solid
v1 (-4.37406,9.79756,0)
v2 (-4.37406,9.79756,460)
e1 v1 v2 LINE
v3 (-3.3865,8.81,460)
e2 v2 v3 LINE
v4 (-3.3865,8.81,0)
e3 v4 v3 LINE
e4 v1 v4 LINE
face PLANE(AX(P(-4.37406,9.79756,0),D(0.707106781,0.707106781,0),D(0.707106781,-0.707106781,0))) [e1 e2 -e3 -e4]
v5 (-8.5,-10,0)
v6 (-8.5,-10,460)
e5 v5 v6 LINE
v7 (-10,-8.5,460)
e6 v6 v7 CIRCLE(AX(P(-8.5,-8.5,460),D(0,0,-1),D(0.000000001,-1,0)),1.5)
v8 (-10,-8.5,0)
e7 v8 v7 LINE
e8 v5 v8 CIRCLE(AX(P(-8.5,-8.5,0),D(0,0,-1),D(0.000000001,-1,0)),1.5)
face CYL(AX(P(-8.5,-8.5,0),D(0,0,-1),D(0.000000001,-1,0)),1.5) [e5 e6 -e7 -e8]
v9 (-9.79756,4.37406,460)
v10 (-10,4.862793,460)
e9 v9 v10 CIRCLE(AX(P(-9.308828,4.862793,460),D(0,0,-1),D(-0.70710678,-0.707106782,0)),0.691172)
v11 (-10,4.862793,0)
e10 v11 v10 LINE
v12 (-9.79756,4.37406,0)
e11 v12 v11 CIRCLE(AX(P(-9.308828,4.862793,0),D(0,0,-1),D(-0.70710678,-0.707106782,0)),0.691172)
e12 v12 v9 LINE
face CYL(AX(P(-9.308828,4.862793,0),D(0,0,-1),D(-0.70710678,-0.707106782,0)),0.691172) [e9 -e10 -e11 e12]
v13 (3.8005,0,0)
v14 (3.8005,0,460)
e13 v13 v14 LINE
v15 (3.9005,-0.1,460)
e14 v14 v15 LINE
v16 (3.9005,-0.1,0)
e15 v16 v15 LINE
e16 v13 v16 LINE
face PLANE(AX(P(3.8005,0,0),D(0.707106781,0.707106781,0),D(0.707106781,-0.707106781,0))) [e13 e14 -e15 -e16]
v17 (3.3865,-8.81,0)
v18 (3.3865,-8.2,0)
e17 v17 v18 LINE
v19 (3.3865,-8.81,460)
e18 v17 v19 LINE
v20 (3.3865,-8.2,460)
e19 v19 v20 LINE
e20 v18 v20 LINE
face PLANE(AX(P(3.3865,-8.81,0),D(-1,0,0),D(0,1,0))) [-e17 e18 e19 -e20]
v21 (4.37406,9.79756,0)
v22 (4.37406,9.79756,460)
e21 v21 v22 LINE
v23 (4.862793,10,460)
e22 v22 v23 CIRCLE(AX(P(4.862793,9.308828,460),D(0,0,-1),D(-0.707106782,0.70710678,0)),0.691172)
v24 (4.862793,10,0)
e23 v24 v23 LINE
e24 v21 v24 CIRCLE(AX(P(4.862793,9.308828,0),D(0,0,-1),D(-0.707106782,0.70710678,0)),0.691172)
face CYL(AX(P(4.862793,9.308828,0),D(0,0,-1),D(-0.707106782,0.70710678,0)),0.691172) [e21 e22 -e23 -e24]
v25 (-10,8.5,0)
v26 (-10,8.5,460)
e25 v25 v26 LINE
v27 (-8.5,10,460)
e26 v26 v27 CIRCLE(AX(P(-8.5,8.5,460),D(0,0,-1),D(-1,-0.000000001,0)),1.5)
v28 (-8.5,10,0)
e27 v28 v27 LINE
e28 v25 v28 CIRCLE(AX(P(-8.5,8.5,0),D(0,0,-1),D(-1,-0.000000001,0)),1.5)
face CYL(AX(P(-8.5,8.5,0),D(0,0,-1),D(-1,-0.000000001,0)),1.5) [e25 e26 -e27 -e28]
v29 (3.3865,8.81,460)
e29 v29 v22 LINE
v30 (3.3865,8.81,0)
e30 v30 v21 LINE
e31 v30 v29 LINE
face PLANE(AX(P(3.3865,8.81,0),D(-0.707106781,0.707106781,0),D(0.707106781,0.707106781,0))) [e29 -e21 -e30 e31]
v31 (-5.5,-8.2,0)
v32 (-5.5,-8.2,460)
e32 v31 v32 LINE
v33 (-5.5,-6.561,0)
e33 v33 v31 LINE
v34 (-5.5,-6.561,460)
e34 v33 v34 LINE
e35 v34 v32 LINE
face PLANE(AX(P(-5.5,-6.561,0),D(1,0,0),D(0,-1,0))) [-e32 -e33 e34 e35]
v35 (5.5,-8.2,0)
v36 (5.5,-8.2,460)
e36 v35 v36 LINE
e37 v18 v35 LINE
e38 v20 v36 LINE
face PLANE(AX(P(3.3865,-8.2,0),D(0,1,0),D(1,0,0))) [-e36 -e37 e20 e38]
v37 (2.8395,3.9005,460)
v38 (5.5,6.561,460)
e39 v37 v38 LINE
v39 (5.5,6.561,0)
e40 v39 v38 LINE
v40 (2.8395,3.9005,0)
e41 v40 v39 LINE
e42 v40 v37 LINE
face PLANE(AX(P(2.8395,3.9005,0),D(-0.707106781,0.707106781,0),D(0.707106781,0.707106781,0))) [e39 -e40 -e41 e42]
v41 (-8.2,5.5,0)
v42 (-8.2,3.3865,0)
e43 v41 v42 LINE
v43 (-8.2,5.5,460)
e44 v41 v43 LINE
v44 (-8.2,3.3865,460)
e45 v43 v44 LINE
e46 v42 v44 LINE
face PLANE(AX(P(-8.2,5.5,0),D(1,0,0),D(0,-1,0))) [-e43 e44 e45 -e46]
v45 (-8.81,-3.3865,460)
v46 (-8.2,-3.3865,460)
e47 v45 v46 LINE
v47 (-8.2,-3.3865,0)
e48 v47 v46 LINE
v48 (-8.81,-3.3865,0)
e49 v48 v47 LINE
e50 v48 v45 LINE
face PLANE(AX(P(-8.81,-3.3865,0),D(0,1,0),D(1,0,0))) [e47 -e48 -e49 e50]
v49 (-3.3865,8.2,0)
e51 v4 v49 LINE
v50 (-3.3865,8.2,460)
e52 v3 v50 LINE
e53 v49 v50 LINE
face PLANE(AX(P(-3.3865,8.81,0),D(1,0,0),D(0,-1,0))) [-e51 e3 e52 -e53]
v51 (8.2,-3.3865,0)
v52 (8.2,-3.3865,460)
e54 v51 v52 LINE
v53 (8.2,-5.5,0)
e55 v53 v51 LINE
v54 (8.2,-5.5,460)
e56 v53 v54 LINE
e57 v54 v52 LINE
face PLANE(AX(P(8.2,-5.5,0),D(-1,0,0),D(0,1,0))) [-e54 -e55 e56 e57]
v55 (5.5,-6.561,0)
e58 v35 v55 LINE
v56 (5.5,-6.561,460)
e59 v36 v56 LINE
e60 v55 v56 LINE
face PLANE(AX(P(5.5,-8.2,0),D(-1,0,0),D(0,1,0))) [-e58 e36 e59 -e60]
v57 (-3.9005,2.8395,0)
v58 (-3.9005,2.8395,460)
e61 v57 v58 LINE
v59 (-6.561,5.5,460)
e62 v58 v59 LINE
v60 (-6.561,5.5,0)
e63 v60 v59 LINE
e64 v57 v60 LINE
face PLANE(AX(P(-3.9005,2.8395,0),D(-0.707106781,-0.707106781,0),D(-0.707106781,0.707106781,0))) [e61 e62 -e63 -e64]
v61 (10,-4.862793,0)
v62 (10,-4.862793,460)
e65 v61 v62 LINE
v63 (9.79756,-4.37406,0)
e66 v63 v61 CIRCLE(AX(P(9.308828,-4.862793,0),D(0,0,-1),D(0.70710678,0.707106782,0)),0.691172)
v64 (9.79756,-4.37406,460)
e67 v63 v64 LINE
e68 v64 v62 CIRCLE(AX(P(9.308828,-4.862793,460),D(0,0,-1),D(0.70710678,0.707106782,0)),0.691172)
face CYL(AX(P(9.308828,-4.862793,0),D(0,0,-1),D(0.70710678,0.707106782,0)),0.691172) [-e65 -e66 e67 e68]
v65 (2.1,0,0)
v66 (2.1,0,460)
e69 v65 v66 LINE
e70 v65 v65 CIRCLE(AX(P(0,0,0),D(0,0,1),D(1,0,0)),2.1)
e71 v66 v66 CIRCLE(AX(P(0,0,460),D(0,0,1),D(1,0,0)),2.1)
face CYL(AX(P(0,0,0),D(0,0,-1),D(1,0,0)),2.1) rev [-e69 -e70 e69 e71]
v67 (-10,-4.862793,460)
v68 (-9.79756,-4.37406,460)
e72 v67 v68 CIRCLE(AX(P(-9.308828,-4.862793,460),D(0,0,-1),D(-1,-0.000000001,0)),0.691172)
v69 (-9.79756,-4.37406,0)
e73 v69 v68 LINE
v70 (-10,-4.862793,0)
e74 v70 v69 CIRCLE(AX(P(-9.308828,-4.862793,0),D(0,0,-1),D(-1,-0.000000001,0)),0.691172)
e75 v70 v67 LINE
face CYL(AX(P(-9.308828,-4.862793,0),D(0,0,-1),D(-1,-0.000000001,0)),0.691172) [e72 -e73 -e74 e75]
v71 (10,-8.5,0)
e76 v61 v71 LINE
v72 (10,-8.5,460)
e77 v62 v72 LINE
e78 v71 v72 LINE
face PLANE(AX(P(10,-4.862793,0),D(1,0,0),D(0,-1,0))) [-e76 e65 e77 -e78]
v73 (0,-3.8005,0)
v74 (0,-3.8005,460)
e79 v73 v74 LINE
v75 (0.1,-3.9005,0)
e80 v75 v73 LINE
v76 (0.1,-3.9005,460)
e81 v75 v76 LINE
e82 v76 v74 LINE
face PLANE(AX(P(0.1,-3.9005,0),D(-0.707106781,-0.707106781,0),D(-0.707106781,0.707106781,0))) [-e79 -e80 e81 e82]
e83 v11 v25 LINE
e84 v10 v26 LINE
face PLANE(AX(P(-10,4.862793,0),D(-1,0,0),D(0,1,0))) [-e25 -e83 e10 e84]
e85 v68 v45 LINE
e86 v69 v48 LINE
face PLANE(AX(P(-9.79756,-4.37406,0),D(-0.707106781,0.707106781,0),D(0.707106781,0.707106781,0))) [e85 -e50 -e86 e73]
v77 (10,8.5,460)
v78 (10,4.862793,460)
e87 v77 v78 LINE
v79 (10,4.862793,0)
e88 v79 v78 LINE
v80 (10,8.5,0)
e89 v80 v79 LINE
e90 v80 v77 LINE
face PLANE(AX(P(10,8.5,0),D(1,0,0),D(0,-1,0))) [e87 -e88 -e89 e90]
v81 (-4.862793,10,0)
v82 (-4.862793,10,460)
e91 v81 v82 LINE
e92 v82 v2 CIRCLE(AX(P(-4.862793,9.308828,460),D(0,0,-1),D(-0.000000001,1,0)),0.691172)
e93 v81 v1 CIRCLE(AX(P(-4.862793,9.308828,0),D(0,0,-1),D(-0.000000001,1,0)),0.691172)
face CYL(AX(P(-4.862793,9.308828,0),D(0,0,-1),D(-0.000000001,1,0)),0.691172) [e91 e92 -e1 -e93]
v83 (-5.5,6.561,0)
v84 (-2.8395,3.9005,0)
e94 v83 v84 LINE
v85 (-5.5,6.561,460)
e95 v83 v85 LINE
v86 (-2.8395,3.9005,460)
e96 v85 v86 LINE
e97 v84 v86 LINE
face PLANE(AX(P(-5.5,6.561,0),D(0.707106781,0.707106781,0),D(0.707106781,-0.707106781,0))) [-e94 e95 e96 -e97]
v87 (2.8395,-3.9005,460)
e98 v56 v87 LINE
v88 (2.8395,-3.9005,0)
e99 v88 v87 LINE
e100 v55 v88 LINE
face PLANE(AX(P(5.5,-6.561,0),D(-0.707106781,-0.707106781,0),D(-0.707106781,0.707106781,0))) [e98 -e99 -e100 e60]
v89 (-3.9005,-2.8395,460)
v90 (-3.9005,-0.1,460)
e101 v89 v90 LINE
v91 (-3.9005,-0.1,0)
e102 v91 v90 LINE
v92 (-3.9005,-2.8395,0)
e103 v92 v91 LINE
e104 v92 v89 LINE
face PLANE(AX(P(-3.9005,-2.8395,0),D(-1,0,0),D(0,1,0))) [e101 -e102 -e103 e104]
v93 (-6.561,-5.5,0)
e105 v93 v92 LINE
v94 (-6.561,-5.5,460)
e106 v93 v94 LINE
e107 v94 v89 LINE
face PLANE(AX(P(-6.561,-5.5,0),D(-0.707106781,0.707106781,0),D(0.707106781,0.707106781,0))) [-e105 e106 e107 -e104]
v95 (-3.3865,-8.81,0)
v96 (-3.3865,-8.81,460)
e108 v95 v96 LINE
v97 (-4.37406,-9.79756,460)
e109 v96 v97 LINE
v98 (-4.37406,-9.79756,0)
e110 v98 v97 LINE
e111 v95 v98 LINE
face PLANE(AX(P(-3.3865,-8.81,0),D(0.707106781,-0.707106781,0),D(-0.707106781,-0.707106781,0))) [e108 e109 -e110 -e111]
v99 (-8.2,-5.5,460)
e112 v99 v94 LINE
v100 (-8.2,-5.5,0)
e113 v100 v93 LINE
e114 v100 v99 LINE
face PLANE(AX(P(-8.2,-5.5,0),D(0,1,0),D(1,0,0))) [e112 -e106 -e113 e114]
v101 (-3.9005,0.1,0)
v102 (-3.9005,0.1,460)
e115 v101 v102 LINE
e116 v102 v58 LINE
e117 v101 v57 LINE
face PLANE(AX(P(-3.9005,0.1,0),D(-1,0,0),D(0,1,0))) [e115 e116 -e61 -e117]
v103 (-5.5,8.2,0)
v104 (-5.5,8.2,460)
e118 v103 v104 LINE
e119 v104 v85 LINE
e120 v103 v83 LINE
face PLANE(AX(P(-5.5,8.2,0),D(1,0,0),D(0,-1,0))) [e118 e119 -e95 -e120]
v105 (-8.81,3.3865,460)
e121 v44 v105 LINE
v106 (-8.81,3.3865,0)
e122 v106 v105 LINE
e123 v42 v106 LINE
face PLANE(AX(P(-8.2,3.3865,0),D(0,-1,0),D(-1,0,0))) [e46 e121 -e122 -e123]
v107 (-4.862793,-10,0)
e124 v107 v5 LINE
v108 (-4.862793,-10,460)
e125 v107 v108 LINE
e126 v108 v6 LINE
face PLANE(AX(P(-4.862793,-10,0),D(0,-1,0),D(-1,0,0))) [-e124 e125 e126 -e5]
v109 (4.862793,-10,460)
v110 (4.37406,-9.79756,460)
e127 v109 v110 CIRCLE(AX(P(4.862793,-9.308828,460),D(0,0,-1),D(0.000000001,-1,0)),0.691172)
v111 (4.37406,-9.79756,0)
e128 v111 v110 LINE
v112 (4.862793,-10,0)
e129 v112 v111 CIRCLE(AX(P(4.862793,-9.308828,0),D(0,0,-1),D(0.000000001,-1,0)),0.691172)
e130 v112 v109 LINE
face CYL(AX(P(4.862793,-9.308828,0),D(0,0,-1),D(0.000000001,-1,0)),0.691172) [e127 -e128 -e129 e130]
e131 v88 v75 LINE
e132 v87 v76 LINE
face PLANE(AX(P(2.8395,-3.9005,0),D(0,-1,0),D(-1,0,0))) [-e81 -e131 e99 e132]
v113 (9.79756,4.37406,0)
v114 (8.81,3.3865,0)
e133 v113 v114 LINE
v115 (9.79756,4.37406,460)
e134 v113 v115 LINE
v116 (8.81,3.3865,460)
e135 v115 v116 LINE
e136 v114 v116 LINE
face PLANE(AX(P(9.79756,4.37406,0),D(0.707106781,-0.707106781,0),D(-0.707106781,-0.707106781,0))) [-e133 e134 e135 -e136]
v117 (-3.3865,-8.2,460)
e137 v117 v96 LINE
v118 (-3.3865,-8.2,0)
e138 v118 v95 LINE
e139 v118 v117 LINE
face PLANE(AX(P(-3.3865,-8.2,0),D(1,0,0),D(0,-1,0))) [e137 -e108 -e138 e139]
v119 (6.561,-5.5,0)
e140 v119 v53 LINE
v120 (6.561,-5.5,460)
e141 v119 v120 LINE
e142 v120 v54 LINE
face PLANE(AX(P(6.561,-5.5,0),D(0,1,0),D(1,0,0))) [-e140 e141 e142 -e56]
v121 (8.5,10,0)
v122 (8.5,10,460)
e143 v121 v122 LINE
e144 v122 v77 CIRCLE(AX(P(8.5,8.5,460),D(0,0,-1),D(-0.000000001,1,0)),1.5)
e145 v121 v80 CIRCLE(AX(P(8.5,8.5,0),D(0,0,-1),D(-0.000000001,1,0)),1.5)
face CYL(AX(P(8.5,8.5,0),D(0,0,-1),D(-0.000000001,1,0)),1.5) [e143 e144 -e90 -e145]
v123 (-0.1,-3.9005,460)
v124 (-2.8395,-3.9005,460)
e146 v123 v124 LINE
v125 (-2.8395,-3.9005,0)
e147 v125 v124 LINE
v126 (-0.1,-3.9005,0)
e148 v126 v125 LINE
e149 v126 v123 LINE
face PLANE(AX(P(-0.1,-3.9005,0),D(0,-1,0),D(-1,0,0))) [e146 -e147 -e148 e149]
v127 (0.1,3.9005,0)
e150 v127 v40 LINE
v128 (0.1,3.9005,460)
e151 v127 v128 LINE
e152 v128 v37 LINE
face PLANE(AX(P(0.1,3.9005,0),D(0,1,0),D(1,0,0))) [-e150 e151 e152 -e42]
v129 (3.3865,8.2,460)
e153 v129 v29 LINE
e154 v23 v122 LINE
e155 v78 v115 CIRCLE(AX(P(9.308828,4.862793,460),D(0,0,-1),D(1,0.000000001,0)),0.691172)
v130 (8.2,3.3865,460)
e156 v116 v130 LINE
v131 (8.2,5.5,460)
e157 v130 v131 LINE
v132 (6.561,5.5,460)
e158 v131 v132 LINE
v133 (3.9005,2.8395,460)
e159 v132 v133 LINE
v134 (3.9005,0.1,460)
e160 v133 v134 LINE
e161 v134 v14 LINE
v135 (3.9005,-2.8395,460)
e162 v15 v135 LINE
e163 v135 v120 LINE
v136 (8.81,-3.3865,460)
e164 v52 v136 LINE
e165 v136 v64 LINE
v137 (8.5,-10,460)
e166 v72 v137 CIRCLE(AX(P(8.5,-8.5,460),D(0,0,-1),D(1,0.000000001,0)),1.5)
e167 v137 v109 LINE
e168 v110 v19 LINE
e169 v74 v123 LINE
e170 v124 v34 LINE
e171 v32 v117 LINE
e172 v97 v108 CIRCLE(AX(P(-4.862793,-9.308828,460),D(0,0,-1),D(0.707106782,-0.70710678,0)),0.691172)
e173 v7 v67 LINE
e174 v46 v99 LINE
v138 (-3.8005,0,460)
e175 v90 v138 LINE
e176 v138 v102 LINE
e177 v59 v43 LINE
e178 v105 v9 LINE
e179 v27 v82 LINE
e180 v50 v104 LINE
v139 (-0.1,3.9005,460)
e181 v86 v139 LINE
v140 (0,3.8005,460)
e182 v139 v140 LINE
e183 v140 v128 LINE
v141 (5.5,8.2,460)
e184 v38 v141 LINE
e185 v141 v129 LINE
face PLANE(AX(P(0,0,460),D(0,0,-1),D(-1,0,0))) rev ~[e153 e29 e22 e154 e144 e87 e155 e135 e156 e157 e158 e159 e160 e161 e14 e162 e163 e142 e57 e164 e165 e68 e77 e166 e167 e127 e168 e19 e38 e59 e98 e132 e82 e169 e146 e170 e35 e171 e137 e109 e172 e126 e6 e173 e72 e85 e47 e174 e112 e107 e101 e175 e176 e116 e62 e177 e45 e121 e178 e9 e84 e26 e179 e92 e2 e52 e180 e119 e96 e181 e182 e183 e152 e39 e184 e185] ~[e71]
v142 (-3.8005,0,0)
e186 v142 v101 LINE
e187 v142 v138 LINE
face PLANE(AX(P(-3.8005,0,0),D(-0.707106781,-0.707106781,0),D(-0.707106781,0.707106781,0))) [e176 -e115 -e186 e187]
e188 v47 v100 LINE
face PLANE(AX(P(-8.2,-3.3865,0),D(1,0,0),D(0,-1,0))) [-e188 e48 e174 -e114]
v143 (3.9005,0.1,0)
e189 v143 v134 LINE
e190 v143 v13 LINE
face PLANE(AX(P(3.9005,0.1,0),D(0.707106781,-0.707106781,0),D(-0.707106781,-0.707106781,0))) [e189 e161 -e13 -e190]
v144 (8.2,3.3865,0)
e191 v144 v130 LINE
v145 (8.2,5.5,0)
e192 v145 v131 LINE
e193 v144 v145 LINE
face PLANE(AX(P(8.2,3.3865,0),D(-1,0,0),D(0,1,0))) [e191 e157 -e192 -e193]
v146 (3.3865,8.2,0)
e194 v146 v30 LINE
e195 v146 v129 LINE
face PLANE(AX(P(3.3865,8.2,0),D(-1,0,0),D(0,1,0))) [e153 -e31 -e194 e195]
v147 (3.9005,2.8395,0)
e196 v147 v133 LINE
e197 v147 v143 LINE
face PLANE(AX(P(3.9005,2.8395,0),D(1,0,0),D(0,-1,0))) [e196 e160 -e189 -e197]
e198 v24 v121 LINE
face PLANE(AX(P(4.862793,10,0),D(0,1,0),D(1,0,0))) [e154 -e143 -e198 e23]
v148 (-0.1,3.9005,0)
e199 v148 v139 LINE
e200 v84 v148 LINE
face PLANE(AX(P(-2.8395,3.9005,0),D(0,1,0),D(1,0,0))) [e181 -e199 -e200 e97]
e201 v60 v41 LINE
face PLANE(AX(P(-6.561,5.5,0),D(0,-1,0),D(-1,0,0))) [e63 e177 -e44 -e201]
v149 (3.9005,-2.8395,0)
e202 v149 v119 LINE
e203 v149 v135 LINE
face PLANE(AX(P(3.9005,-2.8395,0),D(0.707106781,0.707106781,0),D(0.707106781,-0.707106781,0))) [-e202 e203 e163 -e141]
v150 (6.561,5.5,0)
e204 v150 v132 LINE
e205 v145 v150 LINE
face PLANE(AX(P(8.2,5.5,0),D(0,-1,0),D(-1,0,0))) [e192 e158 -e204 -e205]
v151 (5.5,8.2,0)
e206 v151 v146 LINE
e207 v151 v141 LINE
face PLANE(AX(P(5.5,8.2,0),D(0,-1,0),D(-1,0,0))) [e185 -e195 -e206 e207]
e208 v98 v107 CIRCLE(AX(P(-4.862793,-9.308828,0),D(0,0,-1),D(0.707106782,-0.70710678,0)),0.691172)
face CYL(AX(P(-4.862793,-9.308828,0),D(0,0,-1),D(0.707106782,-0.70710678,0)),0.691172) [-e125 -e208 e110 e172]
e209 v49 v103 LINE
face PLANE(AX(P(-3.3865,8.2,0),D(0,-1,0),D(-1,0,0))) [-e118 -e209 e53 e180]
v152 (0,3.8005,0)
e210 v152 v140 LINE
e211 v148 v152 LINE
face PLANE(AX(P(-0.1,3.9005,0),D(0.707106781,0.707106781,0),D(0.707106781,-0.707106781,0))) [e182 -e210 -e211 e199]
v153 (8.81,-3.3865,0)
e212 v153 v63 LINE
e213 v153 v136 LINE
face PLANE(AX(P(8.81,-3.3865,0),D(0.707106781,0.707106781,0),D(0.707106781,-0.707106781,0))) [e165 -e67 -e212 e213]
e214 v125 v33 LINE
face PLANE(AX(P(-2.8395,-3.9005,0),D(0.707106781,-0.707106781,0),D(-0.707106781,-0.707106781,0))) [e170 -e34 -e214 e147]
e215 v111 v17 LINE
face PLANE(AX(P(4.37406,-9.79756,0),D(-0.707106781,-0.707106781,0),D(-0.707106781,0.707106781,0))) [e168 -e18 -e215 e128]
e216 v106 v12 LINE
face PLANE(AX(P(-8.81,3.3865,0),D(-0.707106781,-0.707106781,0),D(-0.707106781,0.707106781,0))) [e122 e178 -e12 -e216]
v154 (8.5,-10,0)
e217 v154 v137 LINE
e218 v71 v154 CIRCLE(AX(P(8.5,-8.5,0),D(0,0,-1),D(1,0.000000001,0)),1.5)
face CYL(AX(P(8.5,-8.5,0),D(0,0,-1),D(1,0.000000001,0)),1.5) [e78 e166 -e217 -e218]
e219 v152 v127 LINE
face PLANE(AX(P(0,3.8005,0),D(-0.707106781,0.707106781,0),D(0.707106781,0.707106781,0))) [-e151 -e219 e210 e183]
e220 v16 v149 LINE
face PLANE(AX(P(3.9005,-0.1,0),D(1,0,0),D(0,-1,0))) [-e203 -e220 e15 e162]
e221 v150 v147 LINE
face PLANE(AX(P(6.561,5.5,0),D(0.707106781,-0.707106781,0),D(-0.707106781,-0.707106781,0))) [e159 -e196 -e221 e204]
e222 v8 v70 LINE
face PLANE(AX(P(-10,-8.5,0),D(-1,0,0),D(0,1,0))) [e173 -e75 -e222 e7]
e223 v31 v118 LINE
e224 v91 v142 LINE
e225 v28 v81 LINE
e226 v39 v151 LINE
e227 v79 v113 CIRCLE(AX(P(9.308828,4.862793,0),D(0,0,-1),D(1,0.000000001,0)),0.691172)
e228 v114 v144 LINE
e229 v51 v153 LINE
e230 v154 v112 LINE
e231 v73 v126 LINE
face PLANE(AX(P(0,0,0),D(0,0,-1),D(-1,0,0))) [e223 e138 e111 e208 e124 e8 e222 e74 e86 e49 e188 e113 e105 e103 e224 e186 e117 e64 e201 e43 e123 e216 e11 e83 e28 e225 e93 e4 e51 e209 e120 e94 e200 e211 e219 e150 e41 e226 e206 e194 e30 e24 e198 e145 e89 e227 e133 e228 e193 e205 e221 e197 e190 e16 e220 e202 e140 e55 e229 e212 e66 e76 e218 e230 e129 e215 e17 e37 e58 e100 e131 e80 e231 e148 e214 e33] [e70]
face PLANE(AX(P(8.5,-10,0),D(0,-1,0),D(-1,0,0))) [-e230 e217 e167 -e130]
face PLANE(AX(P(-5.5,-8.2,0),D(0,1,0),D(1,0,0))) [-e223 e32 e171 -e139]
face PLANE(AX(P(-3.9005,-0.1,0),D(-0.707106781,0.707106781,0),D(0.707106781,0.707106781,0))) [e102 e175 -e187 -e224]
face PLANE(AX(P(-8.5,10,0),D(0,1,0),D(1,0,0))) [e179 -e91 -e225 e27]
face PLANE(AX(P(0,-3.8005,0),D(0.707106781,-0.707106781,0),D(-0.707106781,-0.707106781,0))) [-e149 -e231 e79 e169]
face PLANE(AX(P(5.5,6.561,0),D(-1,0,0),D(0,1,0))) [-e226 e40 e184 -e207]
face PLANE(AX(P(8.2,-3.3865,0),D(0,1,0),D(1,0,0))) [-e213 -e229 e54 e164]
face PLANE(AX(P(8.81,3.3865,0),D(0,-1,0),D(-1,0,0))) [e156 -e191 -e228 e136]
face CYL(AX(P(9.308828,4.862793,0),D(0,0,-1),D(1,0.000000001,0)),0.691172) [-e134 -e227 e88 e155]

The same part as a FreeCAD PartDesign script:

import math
import FreeCAD as App
import Part
import Sketcher
Q = App.Units.Quantity

doc = App.newDocument("Part")
params = doc.addObject("Spreadsheet::Sheet", "Params")
for row, (alias, value) in enumerate([
    ("sketch1_diameter", "4.2 mm"),
    ("sketch1_radius", "1.5 mm"),
    ("sketch1_width", "0.61 mm"),
    ("pad1_length", "460 mm"),
], start=1):
    params.set(f"A{row}", alias)
    params.set(f"B{row}", "=" + value)
    params.setAlias(f"B{row}", alias)

body = doc.addObject("PartDesign::Body", "Body")

# Sketch on XY plane
sketch1 = doc.addObject("Sketcher::SketchObject", "Sketch")
body.addObject(sketch1)
sketch1.AttachmentSupport = (doc.XY_Plane, [""])
sketch1.MapMode = "FlatFace"
sketch1.addGeometry(Part.LineSegment(App.Vector(-4.86, 10, 0), App.Vector(-8.5, 10, 0)), False)
sketch1.addGeometry(Part.ArcOfCircle(Part.Circle(App.Vector(-8.5, 8.5, 0), App.Vector(0, 0, 1), 1.5), math.radians(90), math.radians(180)), False)
sketch1.addGeometry(Part.LineSegment(App.Vector(-10, 8.5, 0), App.Vector(-10, 4.86, 0)), False)
sketch1.addGeometry(Part.ArcOfCircle(Part.Circle(App.Vector(-9.31, 4.86, 0), App.Vector(0, 0, 1), 0.69), math.radians(180), math.radians(225)), False)
sketch1.addGeometry(Part.LineSegment(App.Vector(-9.8, 4.37, 0), App.Vector(-8.81, 3.39, 0)), False)
sketch1.addGeometry(Part.LineSegment(App.Vector(-8.81, 3.39, 0), App.Vector(-8.2, 3.39, 0)), False)
sketch1.addGeometry(Part.LineSegment(App.Vector(-8.2, 3.39, 0), App.Vector(-8.2, 5.5, 0)), False)
sketch1.addGeometry(Part.LineSegment(App.Vector(-8.2, 5.5, 0), App.Vector(-6.56, 5.5, 0)), False)
sketch1.addGeometry(Part.LineSegment(App.Vector(-6.56, 5.5, 0), App.Vector(-3.9, 2.84, 0)), False)
sketch1.addGeometry(Part.LineSegment(App.Vector(-3.9, 2.84, 0), App.Vector(-3.9, 0.1, 0)), False)
sketch1.addGeometry(Part.LineSegment(App.Vector(-3.9, 0.1, 0), App.Vector(-3.8, 0, 0)), False)
sketch1.addGeometry(Part.LineSegment(App.Vector(-3.8, 0, 0), App.Vector(-3.9, -0.1, 0)), False)
sketch1.addGeometry(Part.LineSegment(App.Vector(-3.9, -0.1, 0), App.Vector(-3.9, -2.84, 0)), False)
sketch1.addGeometry(Part.LineSegment(App.Vector(-3.9, -2.84, 0), App.Vector(-6.56, -5.5, 0)), False)
sketch1.addGeometry(Part.LineSegment(App.Vector(-6.56, -5.5, 0), App.Vector(-8.2, -5.5, 0)), False)
sketch1.addGeometry(Part.LineSegment(App.Vector(-8.2, -5.5, 0), App.Vector(-8.2, -3.39, 0)), False)
sketch1.addGeometry(Part.LineSegment(App.Vector(-8.2, -3.39, 0), App.Vector(-8.81, -3.39, 0)), False)
sketch1.addGeometry(Part.LineSegment(App.Vector(-8.81, -3.39, 0), App.Vector(-9.8, -4.37, 0)), False)
sketch1.addGeometry(Part.ArcOfCircle(Part.Circle(App.Vector(-9.31, -4.86, 0), App.Vector(0, 0, 1), 0.69), math.radians(135), math.radians(180)), False)
sketch1.addGeometry(Part.LineSegment(App.Vector(-10, -4.86, 0), App.Vector(-10, -8.5, 0)), False)
sketch1.addGeometry(Part.ArcOfCircle(Part.Circle(App.Vector(-8.5, -8.5, 0), App.Vector(0, 0, 1), 1.5), math.radians(180), math.radians(270)), False)
sketch1.addGeometry(Part.LineSegment(App.Vector(-8.5, -10, 0), App.Vector(-4.86, -10, 0)), False)
sketch1.addGeometry(Part.ArcOfCircle(Part.Circle(App.Vector(-4.86, -9.31, 0), App.Vector(0, 0, 1), 0.69), math.radians(-90), math.radians(-45)), False)
sketch1.addGeometry(Part.LineSegment(App.Vector(-4.37, -9.8, 0), App.Vector(-3.39, -8.81, 0)), False)
sketch1.addGeometry(Part.LineSegment(App.Vector(-3.39, -8.81, 0), App.Vector(-3.39, -8.2, 0)), False)
sketch1.addGeometry(Part.LineSegment(App.Vector(-3.39, -8.2, 0), App.Vector(-5.5, -8.2, 0)), False)
sketch1.addGeometry(Part.LineSegment(App.Vector(-5.5, -8.2, 0), App.Vector(-5.5, -6.56, 0)), False)
sketch1.addGeometry(Part.LineSegment(App.Vector(-5.5, -6.56, 0), App.Vector(-2.84, -3.9, 0)), False)
sketch1.addGeometry(Part.LineSegment(App.Vector(-2.84, -3.9, 0), App.Vector(-0.1, -3.9, 0)), False)
sketch1.addGeometry(Part.LineSegment(App.Vector(-0.1, -3.9, 0), App.Vector(0, -3.8, 0)), False)
sketch1.addGeometry(Part.LineSegment(App.Vector(0, -3.8, 0), App.Vector(0.1, -3.9, 0)), False)
sketch1.addGeometry(Part.LineSegment(App.Vector(0.1, -3.9, 0), App.Vector(2.84, -3.9, 0)), False)
sketch1.addGeometry(Part.LineSegment(App.Vector(2.84, -3.9, 0), App.Vector(5.5, -6.56, 0)), False)
sketch1.addGeometry(Part.LineSegment(App.Vector(5.5, -6.56, 0), App.Vector(5.5, -8.2, 0)), False)
sketch1.addGeometry(Part.LineSegment(App.Vector(5.5, -8.2, 0), App.Vector(3.39, -8.2, 0)), False)
sketch1.addGeometry(Part.LineSegment(App.Vector(3.39, -8.2, 0), App.Vector(3.39, -8.81, 0)), False)
sketch1.addGeometry(Part.LineSegment(App.Vector(3.39, -8.81, 0), App.Vector(4.37, -9.8, 0)), False)
sketch1.addGeometry(Part.ArcOfCircle(Part.Circle(App.Vector(4.86, -9.31, 0), App.Vector(0, 0, 1), 0.69), math.radians(-135), math.radians(-90)), False)
sketch1.addGeometry(Part.LineSegment(App.Vector(4.86, -10, 0), App.Vector(8.5, -10, 0)), False)
sketch1.addGeometry(Part.ArcOfCircle(Part.Circle(App.Vector(8.5, -8.5, 0), App.Vector(0, 0, 1), 1.5), math.radians(-90), math.radians(0)), False)
sketch1.addGeometry(Part.LineSegment(App.Vector(10, -8.5, 0), App.Vector(10, -4.86, 0)), False)
sketch1.addGeometry(Part.ArcOfCircle(Part.Circle(App.Vector(9.31, -4.86, 0), App.Vector(0, 0, 1), 0.69), math.radians(0), math.radians(45)), False)
sketch1.addGeometry(Part.LineSegment(App.Vector(9.8, -4.37, 0), App.Vector(8.81, -3.39, 0)), False)
sketch1.addGeometry(Part.LineSegment(App.Vector(8.81, -3.39, 0), App.Vector(8.2, -3.39, 0)), False)
sketch1.addGeometry(Part.LineSegment(App.Vector(8.2, -3.39, 0), App.Vector(8.2, -5.5, 0)), False)
sketch1.addGeometry(Part.LineSegment(App.Vector(8.2, -5.5, 0), App.Vector(6.56, -5.5, 0)), False)
sketch1.addGeometry(Part.LineSegment(App.Vector(6.56, -5.5, 0), App.Vector(3.9, -2.84, 0)), False)
sketch1.addGeometry(Part.LineSegment(App.Vector(3.9, -2.84, 0), App.Vector(3.9, -0.1, 0)), False)
sketch1.addGeometry(Part.LineSegment(App.Vector(3.9, -0.1, 0), App.Vector(3.8, 0, 0)), False)
sketch1.addGeometry(Part.LineSegment(App.Vector(3.8, 0, 0), App.Vector(3.9, 0.1, 0)), False)
sketch1.addGeometry(Part.LineSegment(App.Vector(3.9, 0.1, 0), App.Vector(3.9, 2.84, 0)), False)
sketch1.addGeometry(Part.LineSegment(App.Vector(3.9, 2.84, 0), App.Vector(6.56, 5.5, 0)), False)
sketch1.addGeometry(Part.LineSegment(App.Vector(6.56, 5.5, 0), App.Vector(8.2, 5.5, 0)), False)
sketch1.addGeometry(Part.LineSegment(App.Vector(8.2, 5.5, 0), App.Vector(8.2, 3.39, 0)), False)
sketch1.addGeometry(Part.LineSegment(App.Vector(8.2, 3.39, 0), App.Vector(8.81, 3.39, 0)), False)
sketch1.addGeometry(Part.LineSegment(App.Vector(8.81, 3.39, 0), App.Vector(9.8, 4.37, 0)), False)
sketch1.addGeometry(Part.ArcOfCircle(Part.Circle(App.Vector(9.31, 4.86, 0), App.Vector(0, 0, 1), 0.69), math.radians(-45), math.radians(0)), False)
sketch1.addGeometry(Part.LineSegment(App.Vector(10, 4.86, 0), App.Vector(10, 8.5, 0)), False)
sketch1.addGeometry(Part.ArcOfCircle(Part.Circle(App.Vector(8.5, 8.5, 0), App.Vector(0, 0, 1), 1.5), math.radians(0), math.radians(90)), False)
sketch1.addGeometry(Part.LineSegment(App.Vector(8.5, 10, 0), App.Vector(4.86, 10, 0)), False)
sketch1.addGeometry(Part.ArcOfCircle(Part.Circle(App.Vector(4.86, 9.31, 0), App.Vector(0, 0, 1), 0.69), math.radians(90), math.radians(135)), False)
sketch1.addGeometry(Part.LineSegment(App.Vector(4.37, 9.8, 0), App.Vector(3.39, 8.81, 0)), False)
sketch1.addGeometry(Part.LineSegment(App.Vector(3.39, 8.81, 0), App.Vector(3.39, 8.2, 0)), False)
sketch1.addGeometry(Part.LineSegment(App.Vector(3.39, 8.2, 0), App.Vector(5.5, 8.2, 0)), False)
sketch1.addGeometry(Part.LineSegment(App.Vector(5.5, 8.2, 0), App.Vector(5.5, 6.56, 0)), False)
sketch1.addGeometry(Part.LineSegment(App.Vector(5.5, 6.56, 0), App.Vector(2.84, 3.9, 0)), False)
sketch1.addGeometry(Part.LineSegment(App.Vector(2.84, 3.9, 0), App.Vector(0.1, 3.9, 0)), False)
sketch1.addGeometry(Part.LineSegment(App.Vector(0.1, 3.9, 0), App.Vector(0, 3.8, 0)), False)
sketch1.addGeometry(Part.LineSegment(App.Vector(0, 3.8, 0), App.Vector(-0.1, 3.9, 0)), False)
sketch1.addGeometry(Part.LineSegment(App.Vector(-0.1, 3.9, 0), App.Vector(-2.84, 3.9, 0)), False)
sketch1.addGeometry(Part.LineSegment(App.Vector(-2.84, 3.9, 0), App.Vector(-5.5, 6.56, 0)), False)
sketch1.addGeometry(Part.LineSegment(App.Vector(-5.5, 6.56, 0), App.Vector(-5.5, 8.2, 0)), False)
sketch1.addGeometry(Part.LineSegment(App.Vector(-5.5, 8.2, 0), App.Vector(-3.39, 8.2, 0)), False)
sketch1.addGeometry(Part.LineSegment(App.Vector(-3.39, 8.2, 0), App.Vector(-3.39, 8.81, 0)), False)
sketch1.addGeometry(Part.LineSegment(App.Vector(-3.39, 8.81, 0), App.Vector(-4.37, 9.8, 0)), False)
sketch1.addGeometry(Part.ArcOfCircle(Part.Circle(App.Vector(-4.86, 9.31, 0), App.Vector(0, 0, 1), 0.69), math.radians(45), math.radians(90)), False)
sketch1.addGeometry(Part.Circle(App.Vector(0, 0, 0), App.Vector(0, 0, 1), 2.1), False)
sketch1.addConstraint(Sketcher.Constraint("Tangent", 0, 2, 1, 1))
sketch1.addConstraint(Sketcher.Constraint("Tangent", 1, 2, 2, 1))
sketch1.addConstraint(Sketcher.Constraint("Tangent", 2, 2, 3, 1))
sketch1.addConstraint(Sketcher.Constraint("Tangent", 3, 2, 4, 1))
sketch1.addConstraint(Sketcher.Constraint("Coincident", 4, 2, 5, 1))
sketch1.addConstraint(Sketcher.Constraint("Coincident", 5, 2, 6, 1))
sketch1.addConstraint(Sketcher.Constraint("Coincident", 6, 2, 7, 1))
sketch1.addConstraint(Sketcher.Constraint("Coincident", 7, 2, 8, 1))
sketch1.addConstraint(Sketcher.Constraint("Coincident", 8, 2, 9, 1))
sketch1.addConstraint(Sketcher.Constraint("Coincident", 9, 2, 10, 1))
sketch1.addConstraint(Sketcher.Constraint("Coincident", 10, 2, 11, 1))
sketch1.addConstraint(Sketcher.Constraint("Coincident", 11, 2, 12, 1))
sketch1.addConstraint(Sketcher.Constraint("Coincident", 12, 2, 13, 1))
sketch1.addConstraint(Sketcher.Constraint("Coincident", 13, 2, 14, 1))
sketch1.addConstraint(Sketcher.Constraint("Coincident", 14, 2, 15, 1))
sketch1.addConstraint(Sketcher.Constraint("Coincident", 15, 2, 16, 1))
sketch1.addConstraint(Sketcher.Constraint("Coincident", 16, 2, 17, 1))
sketch1.addConstraint(Sketcher.Constraint("Tangent", 17, 2, 18, 1))
sketch1.addConstraint(Sketcher.Constraint("Tangent", 18, 2, 19, 1))
sketch1.addConstraint(Sketcher.Constraint("Tangent", 19, 2, 20, 1))
sketch1.addConstraint(Sketcher.Constraint("Tangent", 20, 2, 21, 1))
sketch1.addConstraint(Sketcher.Constraint("Tangent", 21, 2, 22, 1))
sketch1.addConstraint(Sketcher.Constraint("Tangent", 22, 2, 23, 1))
sketch1.addConstraint(Sketcher.Constraint("Coincident", 23, 2, 24, 1))
sketch1.addConstraint(Sketcher.Constraint("Coincident", 24, 2, 25, 1))
sketch1.addConstraint(Sketcher.Constraint("Coincident", 25, 2, 26, 1))
sketch1.addConstraint(Sketcher.Constraint("Coincident", 26, 2, 27, 1))
sketch1.addConstraint(Sketcher.Constraint("Coincident", 27, 2, 28, 1))
sketch1.addConstraint(Sketcher.Constraint("Coincident", 28, 2, 29, 1))
sketch1.addConstraint(Sketcher.Constraint("Coincident", 29, 2, 30, 1))
sketch1.addConstraint(Sketcher.Constraint("Coincident", 30, 2, 31, 1))
sketch1.addConstraint(Sketcher.Constraint("Coincident", 31, 2, 32, 1))
sketch1.addConstraint(Sketcher.Constraint("Coincident", 32, 2, 33, 1))
sketch1.addConstraint(Sketcher.Constraint("Coincident", 33, 2, 34, 1))
sketch1.addConstraint(Sketcher.Constraint("Coincident", 34, 2, 35, 1))
sketch1.addConstraint(Sketcher.Constraint("Coincident", 35, 2, 36, 1))
sketch1.addConstraint(Sketcher.Constraint("Tangent", 36, 2, 37, 1))
sketch1.addConstraint(Sketcher.Constraint("Tangent", 37, 2, 38, 1))
sketch1.addConstraint(Sketcher.Constraint("Tangent", 38, 2, 39, 1))
sketch1.addConstraint(Sketcher.Constraint("Tangent", 39, 2, 40, 1))
sketch1.addConstraint(Sketcher.Constraint("Tangent", 40, 2, 41, 1))
sketch1.addConstraint(Sketcher.Constraint("Tangent", 41, 2, 42, 1))
sketch1.addConstraint(Sketcher.Constraint("Coincident", 42, 2, 43, 1))
sketch1.addConstraint(Sketcher.Constraint("Coincident", 43, 2, 44, 1))
sketch1.addConstraint(Sketcher.Constraint("Coincident", 44, 2, 45, 1))
sketch1.addConstraint(Sketcher.Constraint("Coincident", 45, 2, 46, 1))
sketch1.addConstraint(Sketcher.Constraint("Coincident", 46, 2, 47, 1))
sketch1.addConstraint(Sketcher.Constraint("Coincident", 47, 2, 48, 1))
sketch1.addConstraint(Sketcher.Constraint("Coincident", 48, 2, 49, 1))
sketch1.addConstraint(Sketcher.Constraint("Coincident", 49, 2, 50, 1))
sketch1.addConstraint(Sketcher.Constraint("Coincident", 50, 2, 51, 1))
sketch1.addConstraint(Sketcher.Constraint("Coincident", 51, 2, 52, 1))
sketch1.addConstraint(Sketcher.Constraint("Coincident", 52, 2, 53, 1))
sketch1.addConstraint(Sketcher.Constraint("Coincident", 53, 2, 54, 1))
sketch1.addConstraint(Sketcher.Constraint("Coincident", 54, 2, 55, 1))
sketch1.addConstraint(Sketcher.Constraint("Tangent", 55, 2, 56, 1))
sketch1.addConstraint(Sketcher.Constraint("Tangent", 56, 2, 57, 1))
sketch1.addConstraint(Sketcher.Constraint("Tangent", 57, 2, 58, 1))
sketch1.addConstraint(Sketcher.Constraint("Tangent", 58, 2, 59, 1))
sketch1.addConstraint(Sketcher.Constraint("Tangent", 59, 2, 60, 1))
sketch1.addConstraint(Sketcher.Constraint("Tangent", 60, 2, 61, 1))
sketch1.addConstraint(Sketcher.Constraint("Coincident", 61, 2, 62, 1))
sketch1.addConstraint(Sketcher.Constraint("Coincident", 62, 2, 63, 1))
sketch1.addConstraint(Sketcher.Constraint("Coincident", 63, 2, 64, 1))
sketch1.addConstraint(Sketcher.Constraint("Coincident", 64, 2, 65, 1))
sketch1.addConstraint(Sketcher.Constraint("Coincident", 65, 2, 66, 1))
sketch1.addConstraint(Sketcher.Constraint("Coincident", 66, 2, 67, 1))
sketch1.addConstraint(Sketcher.Constraint("Coincident", 67, 2, 68, 1))
sketch1.addConstraint(Sketcher.Constraint("Coincident", 68, 2, 69, 1))
sketch1.addConstraint(Sketcher.Constraint("Coincident", 69, 2, 70, 1))
sketch1.addConstraint(Sketcher.Constraint("Coincident", 70, 2, 71, 1))
sketch1.addConstraint(Sketcher.Constraint("Coincident", 71, 2, 72, 1))
sketch1.addConstraint(Sketcher.Constraint("Coincident", 72, 2, 73, 1))
sketch1.addConstraint(Sketcher.Constraint("Coincident", 73, 2, 74, 1))
sketch1.addConstraint(Sketcher.Constraint("Tangent", 74, 2, 75, 1))
sketch1.addConstraint(Sketcher.Constraint("Tangent", 75, 2, 0, 1))
sketch1.addConstraint(Sketcher.Constraint("Horizontal", 0))
sketch1.addConstraint(Sketcher.Constraint("Vertical", 2))
sketch1.addConstraint(Sketcher.Constraint("Horizontal", 5))
sketch1.addConstraint(Sketcher.Constraint("Vertical", 6))
sketch1.addConstraint(Sketcher.Constraint("Horizontal", 7))
sketch1.addConstraint(Sketcher.Constraint("Vertical", 9))
sketch1.addConstraint(Sketcher.Constraint("Vertical", 12))
sketch1.addConstraint(Sketcher.Constraint("Horizontal", 14))
sketch1.addConstraint(Sketcher.Constraint("Vertical", 15))
sketch1.addConstraint(Sketcher.Constraint("Horizontal", 16))
sketch1.addConstraint(Sketcher.Constraint("Vertical", 19))
sketch1.addConstraint(Sketcher.Constraint("Horizontal", 21))
sketch1.addConstraint(Sketcher.Constraint("Vertical", 24))
sketch1.addConstraint(Sketcher.Constraint("Horizontal", 25))
sketch1.addConstraint(Sketcher.Constraint("Vertical", 26))
sketch1.addConstraint(Sketcher.Constraint("Horizontal", 28))
sketch1.addConstraint(Sketcher.Constraint("Horizontal", 31))
sketch1.addConstraint(Sketcher.Constraint("Vertical", 33))
sketch1.addConstraint(Sketcher.Constraint("Horizontal", 34))
sketch1.addConstraint(Sketcher.Constraint("Vertical", 35))
sketch1.addConstraint(Sketcher.Constraint("Horizontal", 38))
sketch1.addConstraint(Sketcher.Constraint("Vertical", 40))
sketch1.addConstraint(Sketcher.Constraint("Horizontal", 43))
sketch1.addConstraint(Sketcher.Constraint("Vertical", 44))
sketch1.addConstraint(Sketcher.Constraint("Horizontal", 45))
sketch1.addConstraint(Sketcher.Constraint("Vertical", 47))
sketch1.addConstraint(Sketcher.Constraint("Vertical", 50))
sketch1.addConstraint(Sketcher.Constraint("Horizontal", 52))
sketch1.addConstraint(Sketcher.Constraint("Vertical", 53))
sketch1.addConstraint(Sketcher.Constraint("Horizontal", 54))
sketch1.addConstraint(Sketcher.Constraint("Vertical", 57))
sketch1.addConstraint(Sketcher.Constraint("Horizontal", 59))
sketch1.addConstraint(Sketcher.Constraint("Vertical", 62))
sketch1.addConstraint(Sketcher.Constraint("Horizontal", 63))
sketch1.addConstraint(Sketcher.Constraint("Vertical", 64))
sketch1.addConstraint(Sketcher.Constraint("Horizontal", 66))
sketch1.addConstraint(Sketcher.Constraint("Horizontal", 69))
sketch1.addConstraint(Sketcher.Constraint("Vertical", 71))
sketch1.addConstraint(Sketcher.Constraint("Horizontal", 72))
sketch1.addConstraint(Sketcher.Constraint("Vertical", 73))
sketch1.addConstraint(Sketcher.Constraint("Coincident", 76, 3, -1, 1))
sketch1.addConstraint(Sketcher.Constraint("Equal", 3, 18))
sketch1.addConstraint(Sketcher.Constraint("Equal", 1, 20))
sketch1.addConstraint(Sketcher.Constraint("Equal", 18, 22))
sketch1.addConstraint(Sketcher.Constraint("Equal", 22, 37))
sketch1.addConstraint(Sketcher.Constraint("Equal", 20, 39))
sketch1.addConstraint(Sketcher.Constraint("Equal", 37, 41))
sketch1.addConstraint(Sketcher.Constraint("Equal", 41, 56))
sketch1.addConstraint(Sketcher.Constraint("Equal", 39, 58))
sketch1.addConstraint(Sketcher.Constraint("Equal", 56, 60))
sketch1.addConstraint(Sketcher.Constraint("Equal", 60, 75))
sketch1.addConstraint(Sketcher.Constraint("Symmetric", 1, 3, 39, 3, -1, 1))
sketch1.addConstraint(Sketcher.Constraint("Symmetric", 18, 3, 56, 3, -1, 1))
sketch1.addConstraint(Sketcher.Constraint("Symmetric", 22, 3, 60, 3, -1, 1))
sketch1.addConstraint(Sketcher.Constraint("Symmetric", 3, 2, 41, 2, -1, 1))
sketch1.addConstraint(Sketcher.Constraint("Symmetric", 5, 2, 43, 2, -1, 1))
sketch1.addConstraint(Sketcher.Constraint("Symmetric", 7, 2, 45, 2, -1, 1))
sketch1.addConstraint(Sketcher.Constraint("Symmetric", 8, 2, 46, 2, -1, 1))
sketch1.addConstraint(Sketcher.Constraint("Symmetric", 10, 2, 48, 2, -1, 1))
sketch1.addConstraint(Sketcher.Constraint("Symmetric", 11, 2, 49, 2, -1, 1))
sketch1.addConstraint(Sketcher.Constraint("Symmetric", 13, 2, 51, 2, -1, 1))
sketch1.addConstraint(Sketcher.Constraint("Symmetric", 15, 2, 53, 2, -1, 1))
sketch1.addConstraint(Sketcher.Constraint("Symmetric", 23, 2, 61, 2, -1, 1))
sketch1.addConstraint(Sketcher.Constraint("Symmetric", 25, 2, 63, 2, -1, 1))
sketch1.addConstraint(Sketcher.Constraint("Symmetric", 27, 2, 65, 2, -1, 1))
sketch1.addConstraint(Sketcher.Constraint("Symmetric", 29, 2, 67, 2, -1, 1))
sketch1.addConstraint(Sketcher.Constraint("Symmetric", 30, 2, 68, 2, -1, 1))
sketch1.addConstraint(Sketcher.Constraint("Symmetric", 32, 2, 70, 2, -1, 1))
sketch1.addConstraint(Sketcher.Constraint("Symmetric", 34, 2, 72, 2, -1, 1))
sketch1.addConstraint(Sketcher.Constraint("Symmetric", 36, 2, 74, 2, -1, 1))
sketch1.addConstraint(Sketcher.Constraint("Symmetric", 22, 3, 37, 3, -2))
sketch1.addConstraint(Sketcher.Constraint("Symmetric", 18, 3, 41, 3, -2))
sketch1.addConstraint(Sketcher.Constraint("Symmetric", 28, 2, 30, 2, -2))
sketch1.addConstraint(Sketcher.Constraint("Symmetric", 26, 2, 32, 2, -2))
sketch1.addConstraint(Sketcher.Constraint("Symmetric", 24, 2, 34, 2, -2))
sketch1.addConstraint(Sketcher.Constraint("Symmetric", 16, 2, 42, 2, -2))
sketch1.addConstraint(Sketcher.Constraint("Symmetric", 14, 2, 44, 2, -2))
sketch1.addConstraint(Sketcher.Constraint("Symmetric", 12, 2, 46, 2, -2))
sketch1.addConstraint(Sketcher.Constraint("PointOnObject", 10, 2, -1))
sketch1.addConstraint(Sketcher.Constraint("PointOnObject", 29, 2, -2))
sketch1.addConstraint(Sketcher.Constraint("Parallel", 4, 8))
sketch1.addConstraint(Sketcher.Constraint("Parallel", 8, 10))
sketch1.addConstraint(Sketcher.Constraint("Perpendicular", 10, 11))
sketch1.addConstraint(Sketcher.Constraint("Parallel", 11, 13))
sketch1.addConstraint(Sketcher.Constraint("Parallel", 13, 17))
sketch1.addConstraint(Sketcher.Constraint("Parallel", 17, 23))
sketch1.addConstraint(Sketcher.Constraint("Parallel", 23, 27))
sketch1.addConstraint(Sketcher.Constraint("Parallel", 27, 29))
sketch1.addConstraint(Sketcher.Constraint("Parallel", 30, 32))
sketch1.addConstraint(Sketcher.Constraint("Parallel", 32, 36))
sketch1.addConstraint(Sketcher.Constraint("Parallel", 46, 48))
sketch1.addConstraint(Sketcher.Constraint("Parallel", 49, 51))
sketch1.addConstraint(Sketcher.Constraint("Parallel", 51, 55))
sketch1.addConstraint(Sketcher.Constraint("Parallel", 61, 65))
sketch1.addConstraint(Sketcher.Constraint("Parallel", 65, 67))
sketch1.addConstraint(Sketcher.Constraint("Parallel", 68, 70))
sketch1.addConstraint(Sketcher.Constraint("Equal", 59, 2))
sketch1.addConstraint(Sketcher.Constraint("Equal", 72, 6))
sketch1.addConstraint(Sketcher.Constraint("Equal", 69, 9))
sketch1.addConstraint(Sketcher.Constraint("Equal", 54, 24))
sketch1.addConstraint(Sketcher.Constraint("Equal", 52, 26))
sketch1.addConstraint(Sketcher.Constraint("Equal", 17, 23))
sketch1.addConstraint(Sketcher.Constraint("Equal", 13, 27))
sketch1.addConstraint(Sketcher.Constraint("Equal", 11, 29))
sketch1.addConstraint(Sketcher.Constraint("Diameter", 76, Q("4.2 mm")))
sketch1.addConstraint(Sketcher.Constraint("Radius", 1, Q("1.5 mm")))
sketch1.addConstraint(Sketcher.Constraint("DistanceY", -1, 1, 0, 2, Q("10 mm")))
sketch1.addConstraint(Sketcher.Constraint("DistanceX", 5, 1, 5, 2, Q("0.61 mm")))
sketch1.addConstraint(Sketcher.Constraint("DistanceX", 5, 2, -1, 1, Q("8.2 mm")))
sketch1.addConstraint(Sketcher.Constraint("DistanceY", -1, 1, 6, 2, Q("5.5 mm")))
sketch1.addConstraint(Sketcher.Constraint("DistanceY", -1, 1, 9, 2, Q("0.1 mm")))
sketch1.addConstraint(Sketcher.Constraint("DistanceX", 7, 1, 7, 2, Q("1.639 mm")))
sketch1.addConstraint(Sketcher.Constraint("Radius", 3, Q("0.691172 mm")))
sketch1.addConstraint(Sketcher.Constraint("DistanceX", 25, 2, 25, 1, Q("2.1135 mm")))
sketch1.addConstraint(Sketcher.Constraint("DistanceX", 28, 1, 28, 2, Q("2.7395 mm")))
sketch1.setExpression("Constraints[180]", "Params.sketch1_diameter")
sketch1.setExpression("Constraints[181]", "Params.sketch1_radius")
sketch1.setExpression("Constraints[183]", "Params.sketch1_width")
pad1 = doc.addObject("PartDesign::Pad", "Pad")
body.addObject(pad1)
pad1.Profile = sketch1
pad1.setExpression("Length", "Params.pad1_length")

doc.recompute()
